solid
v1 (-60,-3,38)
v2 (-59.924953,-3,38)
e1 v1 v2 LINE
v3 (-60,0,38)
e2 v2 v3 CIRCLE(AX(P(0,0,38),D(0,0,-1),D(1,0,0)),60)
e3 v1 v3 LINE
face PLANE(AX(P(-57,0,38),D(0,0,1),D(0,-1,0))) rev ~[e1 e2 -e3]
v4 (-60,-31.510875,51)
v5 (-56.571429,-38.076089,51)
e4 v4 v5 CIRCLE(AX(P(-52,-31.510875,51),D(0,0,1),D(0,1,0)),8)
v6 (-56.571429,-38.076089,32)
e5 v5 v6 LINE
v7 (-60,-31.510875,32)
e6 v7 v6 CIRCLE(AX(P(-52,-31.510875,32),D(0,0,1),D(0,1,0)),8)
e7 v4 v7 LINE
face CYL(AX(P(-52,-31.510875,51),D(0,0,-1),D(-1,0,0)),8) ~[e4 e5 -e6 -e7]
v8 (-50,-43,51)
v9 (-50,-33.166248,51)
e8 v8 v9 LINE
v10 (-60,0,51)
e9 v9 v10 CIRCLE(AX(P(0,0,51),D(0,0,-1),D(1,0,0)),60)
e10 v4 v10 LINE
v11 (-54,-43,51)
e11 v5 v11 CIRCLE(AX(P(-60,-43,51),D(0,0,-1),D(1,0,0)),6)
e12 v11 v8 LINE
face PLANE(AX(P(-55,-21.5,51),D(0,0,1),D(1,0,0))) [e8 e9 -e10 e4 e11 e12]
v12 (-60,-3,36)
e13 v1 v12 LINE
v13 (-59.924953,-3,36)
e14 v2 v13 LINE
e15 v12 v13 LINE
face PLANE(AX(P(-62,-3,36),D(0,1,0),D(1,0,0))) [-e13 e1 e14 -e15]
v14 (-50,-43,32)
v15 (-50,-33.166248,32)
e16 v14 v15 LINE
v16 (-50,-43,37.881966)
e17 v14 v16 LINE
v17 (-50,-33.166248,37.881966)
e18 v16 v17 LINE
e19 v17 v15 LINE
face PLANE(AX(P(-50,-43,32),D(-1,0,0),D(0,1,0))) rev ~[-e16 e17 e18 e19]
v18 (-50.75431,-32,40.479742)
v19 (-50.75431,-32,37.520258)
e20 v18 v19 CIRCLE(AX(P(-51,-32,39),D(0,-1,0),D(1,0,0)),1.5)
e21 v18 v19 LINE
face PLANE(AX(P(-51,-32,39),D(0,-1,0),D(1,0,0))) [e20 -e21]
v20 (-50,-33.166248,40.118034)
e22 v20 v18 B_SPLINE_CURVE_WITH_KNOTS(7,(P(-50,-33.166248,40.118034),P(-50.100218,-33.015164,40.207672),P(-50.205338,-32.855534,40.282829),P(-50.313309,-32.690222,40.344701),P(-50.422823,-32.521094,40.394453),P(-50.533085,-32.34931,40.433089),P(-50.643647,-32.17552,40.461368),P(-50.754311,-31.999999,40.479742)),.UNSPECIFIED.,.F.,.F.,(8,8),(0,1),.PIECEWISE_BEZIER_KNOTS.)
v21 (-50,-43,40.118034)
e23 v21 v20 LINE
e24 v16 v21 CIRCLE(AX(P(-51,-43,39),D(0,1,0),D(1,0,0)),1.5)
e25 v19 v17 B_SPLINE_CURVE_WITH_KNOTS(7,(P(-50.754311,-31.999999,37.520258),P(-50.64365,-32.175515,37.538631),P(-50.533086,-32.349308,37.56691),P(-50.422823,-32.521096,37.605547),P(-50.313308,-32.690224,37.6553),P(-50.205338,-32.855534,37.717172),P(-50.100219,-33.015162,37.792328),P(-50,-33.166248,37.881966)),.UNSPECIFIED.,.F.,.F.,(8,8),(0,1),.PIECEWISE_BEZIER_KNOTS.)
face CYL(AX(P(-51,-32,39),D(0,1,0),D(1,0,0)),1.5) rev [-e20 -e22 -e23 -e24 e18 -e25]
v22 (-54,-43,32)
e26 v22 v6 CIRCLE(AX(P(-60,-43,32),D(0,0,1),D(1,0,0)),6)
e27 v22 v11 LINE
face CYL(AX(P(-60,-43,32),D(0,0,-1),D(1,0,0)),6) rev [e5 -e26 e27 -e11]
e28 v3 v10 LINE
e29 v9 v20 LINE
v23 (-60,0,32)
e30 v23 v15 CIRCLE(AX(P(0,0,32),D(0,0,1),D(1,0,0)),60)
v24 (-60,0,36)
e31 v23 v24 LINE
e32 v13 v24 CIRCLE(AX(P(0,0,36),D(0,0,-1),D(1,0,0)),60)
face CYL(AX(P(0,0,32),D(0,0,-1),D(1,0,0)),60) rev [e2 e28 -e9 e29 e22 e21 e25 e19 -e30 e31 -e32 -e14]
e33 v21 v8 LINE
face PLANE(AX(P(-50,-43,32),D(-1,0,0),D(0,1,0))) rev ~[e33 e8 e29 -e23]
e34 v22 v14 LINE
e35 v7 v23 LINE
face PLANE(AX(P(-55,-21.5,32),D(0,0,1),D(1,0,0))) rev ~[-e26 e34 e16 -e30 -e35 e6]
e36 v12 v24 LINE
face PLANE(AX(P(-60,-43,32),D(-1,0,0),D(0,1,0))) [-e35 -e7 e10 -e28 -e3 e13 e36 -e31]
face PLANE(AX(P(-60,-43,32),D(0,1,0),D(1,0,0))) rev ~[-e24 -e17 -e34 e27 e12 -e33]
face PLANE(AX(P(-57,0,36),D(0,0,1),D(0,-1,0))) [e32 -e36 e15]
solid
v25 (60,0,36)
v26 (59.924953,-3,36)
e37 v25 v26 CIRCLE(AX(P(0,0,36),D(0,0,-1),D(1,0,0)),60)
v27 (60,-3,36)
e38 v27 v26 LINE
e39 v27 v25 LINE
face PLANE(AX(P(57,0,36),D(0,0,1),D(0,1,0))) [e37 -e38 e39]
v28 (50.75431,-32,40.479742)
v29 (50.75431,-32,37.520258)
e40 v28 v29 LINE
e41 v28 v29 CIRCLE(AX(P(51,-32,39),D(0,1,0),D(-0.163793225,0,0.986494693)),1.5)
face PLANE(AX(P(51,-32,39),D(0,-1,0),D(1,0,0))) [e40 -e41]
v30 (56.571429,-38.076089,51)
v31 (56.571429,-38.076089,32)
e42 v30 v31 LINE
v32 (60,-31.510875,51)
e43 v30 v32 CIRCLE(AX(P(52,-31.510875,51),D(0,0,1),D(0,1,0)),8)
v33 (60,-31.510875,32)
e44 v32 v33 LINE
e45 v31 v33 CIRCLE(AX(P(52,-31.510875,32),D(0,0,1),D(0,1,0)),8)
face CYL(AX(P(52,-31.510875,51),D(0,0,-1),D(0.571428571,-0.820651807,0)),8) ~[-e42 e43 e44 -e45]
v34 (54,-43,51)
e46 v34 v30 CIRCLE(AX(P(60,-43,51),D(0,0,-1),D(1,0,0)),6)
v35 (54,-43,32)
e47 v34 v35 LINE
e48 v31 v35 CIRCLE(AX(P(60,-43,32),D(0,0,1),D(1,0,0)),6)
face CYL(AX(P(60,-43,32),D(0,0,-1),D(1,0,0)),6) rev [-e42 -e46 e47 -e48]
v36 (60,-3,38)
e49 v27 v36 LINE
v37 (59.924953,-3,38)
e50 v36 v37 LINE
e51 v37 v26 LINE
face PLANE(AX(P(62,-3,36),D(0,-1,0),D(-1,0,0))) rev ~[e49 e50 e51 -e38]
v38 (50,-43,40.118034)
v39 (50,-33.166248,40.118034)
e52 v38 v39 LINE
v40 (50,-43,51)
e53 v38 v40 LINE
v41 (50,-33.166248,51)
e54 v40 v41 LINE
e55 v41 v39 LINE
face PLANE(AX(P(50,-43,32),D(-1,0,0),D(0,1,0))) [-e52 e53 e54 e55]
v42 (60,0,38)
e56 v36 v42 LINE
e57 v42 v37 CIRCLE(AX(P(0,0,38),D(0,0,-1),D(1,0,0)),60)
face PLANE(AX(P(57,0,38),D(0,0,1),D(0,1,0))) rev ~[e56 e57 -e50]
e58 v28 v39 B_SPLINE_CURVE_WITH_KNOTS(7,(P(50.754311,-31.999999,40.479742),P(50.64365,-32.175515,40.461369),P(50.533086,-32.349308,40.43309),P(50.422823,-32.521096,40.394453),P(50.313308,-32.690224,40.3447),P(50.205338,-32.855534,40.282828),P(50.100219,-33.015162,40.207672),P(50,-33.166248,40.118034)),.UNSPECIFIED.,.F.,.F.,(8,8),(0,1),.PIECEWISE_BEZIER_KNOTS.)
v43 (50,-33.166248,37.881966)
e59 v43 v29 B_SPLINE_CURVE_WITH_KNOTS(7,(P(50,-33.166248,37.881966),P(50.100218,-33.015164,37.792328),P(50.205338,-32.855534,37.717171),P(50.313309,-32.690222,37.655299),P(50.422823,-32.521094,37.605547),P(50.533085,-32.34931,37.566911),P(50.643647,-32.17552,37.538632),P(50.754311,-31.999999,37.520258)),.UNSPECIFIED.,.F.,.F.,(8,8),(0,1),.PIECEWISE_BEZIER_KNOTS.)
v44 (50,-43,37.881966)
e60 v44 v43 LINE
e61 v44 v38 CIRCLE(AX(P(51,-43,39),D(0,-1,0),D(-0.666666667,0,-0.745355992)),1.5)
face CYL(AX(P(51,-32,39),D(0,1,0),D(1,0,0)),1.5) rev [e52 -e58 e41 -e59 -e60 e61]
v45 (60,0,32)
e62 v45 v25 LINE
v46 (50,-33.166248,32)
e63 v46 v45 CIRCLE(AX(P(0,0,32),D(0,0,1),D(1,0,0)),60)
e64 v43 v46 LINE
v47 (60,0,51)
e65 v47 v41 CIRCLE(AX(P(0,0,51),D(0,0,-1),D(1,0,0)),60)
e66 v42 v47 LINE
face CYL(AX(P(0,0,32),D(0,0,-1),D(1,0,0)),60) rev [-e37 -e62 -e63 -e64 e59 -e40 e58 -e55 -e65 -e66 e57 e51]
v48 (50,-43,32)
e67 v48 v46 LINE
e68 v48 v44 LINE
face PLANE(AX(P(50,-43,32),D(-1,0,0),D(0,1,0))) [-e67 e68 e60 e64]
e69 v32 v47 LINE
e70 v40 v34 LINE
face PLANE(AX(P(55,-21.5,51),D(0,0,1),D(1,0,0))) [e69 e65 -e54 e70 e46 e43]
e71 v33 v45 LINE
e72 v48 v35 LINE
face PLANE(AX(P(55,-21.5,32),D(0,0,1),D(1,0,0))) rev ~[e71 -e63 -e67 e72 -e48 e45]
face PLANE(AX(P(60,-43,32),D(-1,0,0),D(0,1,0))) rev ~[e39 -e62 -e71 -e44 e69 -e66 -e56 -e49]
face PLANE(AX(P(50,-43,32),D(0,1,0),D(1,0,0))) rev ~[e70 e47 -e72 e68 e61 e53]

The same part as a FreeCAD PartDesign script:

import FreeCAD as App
import Part
import Sketcher
Q = App.Units.Quantity


def edges_at(feature, points):
    """Names of the edges that pass closest to the given points."""
    edges = feature.Shape.Edges
    near = lambda p: min(range(len(edges)), key=lambda i: edges[i].distToShape(Part.Vertex(*p))[0])
    return sorted({f"Edge{near(p) + 1}" for p in points})


def add_polygon(sketch, points):
    """Adds a closed chain of lines whose ends are joined by coincident constraints."""
    first, n = sketch.GeometryCount, len(points)
    for a, b in zip(points, points[1:] + points[:1]):
        sketch.addGeometry(Part.LineSegment(App.Vector(*a, 0), App.Vector(*b, 0)), False)
    for i in range(n):
        sketch.addConstraint(Sketcher.Constraint("Coincident", first + i, 2, first + (i + 1) % n, 1))

doc = App.newDocument("Part")
body = doc.addObject("PartDesign::Body", "Body")

# Sketch on XZ plane
sketch1 = doc.addObject("Sketcher::SketchObject", "Sketch")
body.addObject(sketch1)
sketch1.AttachmentSupport = (doc.XZ_Plane, [""])
sketch1.MapMode = "FlatFace"
sketch1.AttachmentOffset = App.Placement(App.Vector(0, 0, 40), App.Rotation())
sketch1.addGeometry(Part.Circle(App.Vector(51, 25, 0), App.Vector(0, 0, 1), 1.5), False)
sketch1.addConstraint([
    Sketcher.Constraint("Diameter", 0, Q("3 mm")),
    Sketcher.Constraint("DistanceX", -1, 1, 0, 3, Q("51 mm")),
    Sketcher.Constraint("DistanceY", -1, 1, 0, 3, Q("25 mm")),
])
pad1 = doc.addObject("PartDesign::Pad", "Pad")
body.addObject(pad1)
pad1.Profile = sketch1
pad1.Length = 40
body2 = doc.addObject("PartDesign::Body", "Body001")
body2.AllowCompound = True

# Sketch on XZ plane
sketch2 = doc.addObject("Sketcher::SketchObject", "Sketch001")
body2.addObject(sketch2)
sketch2.AttachmentSupport = (doc.getObject("XZ_Plane001"), [""])
sketch2.MapMode = "FlatFace"
sketch2.AttachmentOffset = App.Placement(App.Vector(0, 0, 40), App.Rotation())
sketch2.addGeometry(Part.Circle(App.Vector(-51, 25, 0), App.Vector(0, 0, 1), 1.5), False)
sketch2.addConstraint([
    Sketcher.Constraint("Diameter", 0, Q("3 mm")),
    Sketcher.Constraint("DistanceX", 0, 3, -1, 1, Q("51 mm")),
    Sketcher.Constraint("DistanceY", -1, 1, 0, 3, Q("25 mm")),
])
pad2 = doc.addObject("PartDesign::Pad", "Pad001")
body2.addObject(pad2)
pad2.Profile = sketch2
pad2.Length = 40
doc.recompute()

boolean = doc.addObject("PartDesign::Boolean", "Boolean")
body2.addObject(boolean)
boolean.Type = "Fuse"
boolean.addObjects([body])
body3 = doc.addObject("PartDesign::Body", "Body002")
body3.AllowCompound = True
doc.recompute()

body2.Placement = App.Placement(App.Vector(0, 8, 2), App.Rotation(App.Vector(0, 0, 1), 0))
boolean2 = doc.addObject("PartDesign::Boolean", "Boolean001")
body3.addObject(boolean2)
boolean2.Type = "Fuse"
boolean2.addObjects([body2])
body4 = doc.addObject("PartDesign::Body", "Body003")

# Sketch on XY plane
sketch3 = doc.addObject("Sketcher::SketchObject", "Sketch002")
body4.addObject(sketch3)
sketch3.AttachmentSupport = (doc.getObject("XY_Plane003"), [""])
sketch3.MapMode = "FlatFace"
add_polygon(sketch3, [(0, 10), (0, 0), (6, 0), (6, 10)])  # lines 0-3
sketch3.addConstraint([
    Sketcher.Constraint("Vertical", 0),
    Sketcher.Constraint("Horizontal", 1),
    Sketcher.Constraint("Vertical", 2),
    Sketcher.Constraint("Horizontal", 3),
    Sketcher.Constraint("Coincident", 0, 2, -1, 1),
    Sketcher.Constraint("DistanceX", 1, 1, 1, 2, Q("6 mm")),
    Sketcher.Constraint("DistanceY", 0, 2, 0, 1, Q("10 mm")),
])
pad3 = doc.addObject("PartDesign::Pad", "Pad002")
body4.addObject(pad3)
pad3.Profile = sketch3
pad3.Length = 2
body5 = doc.addObject("PartDesign::Body", "Body004")
doc.recompute()

body4.Placement = App.Placement(App.Vector(-41.7193, 45.961941, 23), App.Rotation(App.Vector(0, 0, 1), 225))
boolean3 = doc.addObject("PartDesign::Boolean", "Boolean002")
body5.addObject(boolean3)
boolean3.Type = "Fuse"
boolean3.addObjects([body4])
body6 = doc.addObject("PartDesign::Body", "Body005")

# Sketch on XY plane
sketch4 = doc.addObject("Sketcher::SketchObject", "Sketch003")
body6.addObject(sketch4)
sketch4.AttachmentSupport = (doc.getObject("XY_Plane005"), [""])
sketch4.MapMode = "FlatFace"
sketch4.AttachmentOffset = App.Placement(App.Vector(0, 0, 23), App.Rotation())
add_polygon(sketch4, [(-52, 3), (-62, 3), (-62, -3), (-52, -3)])  # lines 0-3
sketch4.addConstraint([
    Sketcher.Constraint("Horizontal", 0),
    Sketcher.Constraint("Vertical", 1),
    Sketcher.Constraint("Horizontal", 2),
    Sketcher.Constraint("Vertical", 3),
    Sketcher.Constraint("DistanceX", 0, 2, 0, 1, Q("10 mm")),
    Sketcher.Constraint("DistanceY", 1, 2, 1, 1, Q("6 mm")),
    Sketcher.Constraint("DistanceX", 0, 2, -1, 1, Q("62 mm")),
    Sketcher.Constraint("DistanceY", -1, 1, 0, 2, Q("3 mm")),
])
pad4 = doc.addObject("PartDesign::Pad", "Pad003")
body6.addObject(pad4)
pad4.Profile = sketch4
pad4.Length = 2
body7 = doc.addObject("PartDesign::Body", "Body006")

# Sketch on XY plane
sketch5 = doc.addObject("Sketcher::SketchObject", "Sketch004")
body7.addObject(sketch5)
sketch5.AttachmentSupport = (doc.getObject("XY_Plane006"), [""])
sketch5.MapMode = "FlatFace"
add_polygon(sketch5, [(0, 10), (0, 0), (6, 0), (6, 10)])  # lines 0-3
sketch5.addConstraint([
    Sketcher.Constraint("Vertical", 0),
    Sketcher.Constraint("Horizontal", 1),
    Sketcher.Constraint("Vertical", 2),
    Sketcher.Constraint("Horizontal", 3),
    Sketcher.Constraint("Coincident", 0, 2, -1, 1),
    Sketcher.Constraint("DistanceX", 1, 1, 1, 2, Q("6 mm")),
    Sketcher.Constraint("DistanceY", 0, 2, 0, 1, Q("10 mm")),
])
pad5 = doc.addObject("PartDesign::Pad", "Pad004")
body7.addObject(pad5)
pad5.Profile = sketch5
pad5.Length = 2
body8 = doc.addObject("PartDesign::Body", "Body007")
doc.recompute()

body7.Placement = App.Placement(App.Vector(-45.961941, -41.7193, 23), App.Rotation(App.Vector(0, 0, -1), 45))
boolean4 = doc.addObject("PartDesign::Boolean", "Boolean003")
body8.addObject(boolean4)
boolean4.Type = "Fuse"
boolean4.addObjects([body7])
body9 = doc.addObject("PartDesign::Body", "Body008")

# Sketch on XY plane
sketch6 = doc.addObject("Sketcher::SketchObject", "Sketch005")
body9.addObject(sketch6)
sketch6.AttachmentSupport = (doc.getObject("XY_Plane008"), [""])
sketch6.MapMode = "FlatFace"
sketch6.AttachmentOffset = App.Placement(App.Vector(0, 0, 23), App.Rotation())
add_polygon(sketch6, [(-3, -52), (-3, -62), (3, -62), (3, -52)])  # lines 0-3
sketch6.addConstraint([
    Sketcher.Constraint("Vertical", 0),
    Sketcher.Constraint("Horizontal", 1),
    Sketcher.Constraint("Vertical", 2),
    Sketcher.Constraint("Horizontal", 3),
    Sketcher.Constraint("DistanceX", 1, 1, 1, 2, Q("6 mm")),
    Sketcher.Constraint("DistanceY", 0, 2, 0, 1, Q("10 mm")),
    Sketcher.Constraint("DistanceX", 0, 2, -1, 1, Q("3 mm")),
    Sketcher.Constraint("DistanceY", 0, 2, -1, 1, Q("62 mm")),
])
pad6 = doc.addObject("PartDesign::Pad", "Pad005")
body9.addObject(pad6)
pad6.Profile = sketch6
pad6.Length = 2
body10 = doc.addObject("PartDesign::Body", "Body009")

# Sketch on XY plane
sketch7 = doc.addObject("Sketcher::SketchObject", "Sketch006")
body10.addObject(sketch7)
sketch7.AttachmentSupport = (doc.getObject("XY_Plane009"), [""])
sketch7.MapMode = "FlatFace"
add_polygon(sketch7, [(0, 10), (0, 0), (6, 0), (6, 10)])  # lines 0-3
sketch7.addConstraint([
    Sketcher.Constraint("Vertical", 0),
    Sketcher.Constraint("Horizontal", 1),
    Sketcher.Constraint("Vertical", 2),
    Sketcher.Constraint("Horizontal", 3),
    Sketcher.Constraint("Coincident", 0, 2, -1, 1),
    Sketcher.Constraint("DistanceX", 1, 1, 1, 2, Q("6 mm")),
    Sketcher.Constraint("DistanceY", 0, 2, 0, 1, Q("10 mm")),
])
pad7 = doc.addObject("PartDesign::Pad", "Pad006")
body10.addObject(pad7)
pad7.Profile = sketch7
pad7.Length = 2
body11 = doc.addObject("PartDesign::Body", "Body010")
doc.recompute()

body10.Placement = App.Placement(App.Vector(41.7193, -45.961941, 23), App.Rotation(App.Vector(0, 0, 1), 45))
boolean5 = doc.addObject("PartDesign::Boolean", "Boolean004")
body11.addObject(boolean5)
boolean5.Type = "Fuse"
boolean5.addObjects([body10])
body12 = doc.addObject("PartDesign::Body", "Body011")

# Sketch on XY plane
sketch8 = doc.addObject("Sketcher::SketchObject", "Sketch007")
body12.addObject(sketch8)
sketch8.AttachmentSupport = (doc.getObject("XY_Plane011"), [""])
sketch8.MapMode = "FlatFace"
sketch8.AttachmentOffset = App.Placement(App.Vector(0, 0, 23), App.Rotation())
add_polygon(sketch8, [(52, -3), (62, -3), (62, 3), (52, 3)])  # lines 0-3
sketch8.addConstraint([
    Sketcher.Constraint("Horizontal", 0),
    Sketcher.Constraint("Vertical", 1),
    Sketcher.Constraint("Horizontal", 2),
    Sketcher.Constraint("Vertical", 3),
    Sketcher.Constraint("DistanceX", 0, 1, 0, 2, Q("10 mm")),
    Sketcher.Constraint("DistanceY", 1, 1, 1, 2, Q("6 mm")),
    Sketcher.Constraint("DistanceX", -1, 1, 0, 2, Q("62 mm")),
    Sketcher.Constraint("DistanceY", 0, 2, -1, 1, Q("3 mm")),
])
pad8 = doc.addObject("PartDesign::Pad", "Pad007")
body12.addObject(pad8)
pad8.Profile = sketch8
pad8.Length = 2
body13 = doc.addObject("PartDesign::Body", "Body012")

# Sketch on XY plane
sketch9 = doc.addObject("Sketcher::SketchObject", "Sketch008")
body13.addObject(sketch9)
sketch9.AttachmentSupport = (doc.getObject("XY_Plane012"), [""])
sketch9.MapMode = "FlatFace"
add_polygon(sketch9, [(0, 10), (0, 0), (6, 0), (6, 10)])  # lines 0-3
sketch9.addConstraint([
    Sketcher.Constraint("Vertical", 0),
    Sketcher.Constraint("Horizontal", 1),
    Sketcher.Constraint("Vertical", 2),
    Sketcher.Constraint("Horizontal", 3),
    Sketcher.Constraint("Coincident", 0, 2, -1, 1),
    Sketcher.Constraint("DistanceX", 1, 1, 1, 2, Q("6 mm")),
    Sketcher.Constraint("DistanceY", 0, 2, 0, 1, Q("10 mm")),
])
pad9 = doc.addObject("PartDesign::Pad", "Pad008")
body13.addObject(pad9)
pad9.Profile = sketch9
pad9.Length = 2
body14 = doc.addObject("PartDesign::Body", "Body013")
doc.recompute()

body13.Placement = App.Placement(App.Vector(45.961941, 41.7193, 23), App.Rotation(App.Vector(0, 0, 1), 135))
boolean6 = doc.addObject("PartDesign::Boolean", "Boolean005")
body14.addObject(boolean6)
boolean6.Type = "Fuse"
boolean6.addObjects([body13])
body15 = doc.addObject("PartDesign::Body", "Body014")
body15.AllowCompound = True

# Sketch on XY plane
sketch10 = doc.addObject("Sketcher::SketchObject", "Sketch009")
body15.addObject(sketch10)
sketch10.AttachmentSupport = (doc.getObject("XY_Plane014"), [""])
sketch10.MapMode = "FlatFace"
sketch10.AttachmentOffset = App.Placement(App.Vector(0, 0, 23), App.Rotation())
add_polygon(sketch10, [(3, 52), (3, 62), (-3, 62), (-3, 52)])  # lines 0-3
sketch10.addConstraint([
    Sketcher.Constraint("Vertical", 0),
    Sketcher.Constraint("Horizontal", 1),
    Sketcher.Constraint("Vertical", 2),
    Sketcher.Constraint("Horizontal", 3),
    Sketcher.Constraint("DistanceX", 1, 2, 1, 1, Q("6 mm")),
    Sketcher.Constraint("DistanceY", 0, 1, 0, 2, Q("10 mm")),
    Sketcher.Constraint("DistanceX", -1, 1, 0, 2, Q("3 mm")),
    Sketcher.Constraint("DistanceY", -1, 1, 0, 2, Q("62 mm")),
])
pad10 = doc.addObject("PartDesign::Pad", "Pad009")
body15.addObject(pad10)
pad10.Profile = sketch10
pad10.Length = 2
doc.recompute()

boolean7 = doc.addObject("PartDesign::Boolean", "Boolean006")
body15.addObject(boolean7)
boolean7.Type = "Fuse"
boolean7.addObjects([body5])
doc.recompute()

boolean8 = doc.addObject("PartDesign::Boolean", "Boolean007")
body15.addObject(boolean8)
boolean8.Type = "Fuse"
boolean8.addObjects([body6])
doc.recompute()

boolean9 = doc.addObject("PartDesign::Boolean", "Boolean008")
body15.addObject(boolean9)
boolean9.Type = "Fuse"
boolean9.addObjects([body8])
doc.recompute()

boolean10 = doc.addObject("PartDesign::Boolean", "Boolean009")
body15.addObject(boolean10)
boolean10.Type = "Fuse"
boolean10.addObjects([body9])
doc.recompute()

boolean11 = doc.addObject("PartDesign::Boolean", "Boolean010")
body15.addObject(boolean11)
boolean11.Type = "Fuse"
boolean11.addObjects([body11])
doc.recompute()

boolean12 = doc.addObject("PartDesign::Boolean", "Boolean011")
body15.addObject(boolean12)
boolean12.Type = "Fuse"
boolean12.addObjects([body12])
doc.recompute()

boolean13 = doc.addObject("PartDesign::Boolean", "Boolean012")
body15.addObject(boolean13)
boolean13.Type = "Fuse"
boolean13.addObjects([body14])
body16 = doc.addObject("PartDesign::Body", "Body015")
body16.AllowCompound = True
doc.recompute()

body15.Placement = App.Placement(App.Vector(0, 0, 1), App.Rotation(App.Vector(0, 0, 1), 0))
boolean14 = doc.addObject("PartDesign::Boolean", "Boolean013")
body16.addObject(boolean14)
boolean14.Type = "Fuse"
boolean14.addObjects([body15])
body17 = doc.addObject("PartDesign::Body", "Body016")

# Sketch on XY plane
sketch11 = doc.addObject("Sketcher::SketchObject", "Sketch010")
body17.addObject(sketch11)
sketch11.AttachmentSupport = (doc.getObject("XY_Plane016"), [""])
sketch11.MapMode = "FlatFace"
sketch11.AttachmentOffset = App.Placement(App.Vector(0, 0, 20), App.Rotation())
sketch11.addGeometry(Part.Circle(App.Vector(0, 0, 0), App.Vector(0, 0, 1), 60), False)
sketch11.addConstraint([
    Sketcher.Constraint("Coincident", 0, 3, -1, 1),
    Sketcher.Constraint("Diameter", 0, Q("120 mm")),
])
pad11 = doc.addObject("PartDesign::Pad", "Pad010")
body17.addObject(pad11)
pad11.Profile = sketch11
pad11.Length = 33
body18 = doc.addObject("PartDesign::Body", "Body017")

# Sketch on XY plane
sketch12 = doc.addObject("Sketcher::SketchObject", "Sketch011")
body18.addObject(sketch12)
sketch12.AttachmentSupport = (doc.getObject("XY_Plane017"), [""])
sketch12.MapMode = "FlatFace"
sketch12.AttachmentOffset = App.Placement(App.Vector(0, 0, 10), App.Rotation())
sketch12.addGeometry(Part.Circle(App.Vector(-60, -43, 0), App.Vector(0, 0, 1), 6), False)
sketch12.addConstraint([
    Sketcher.Constraint("Diameter", 0, Q("12 mm")),
    Sketcher.Constraint("DistanceX", 0, 3, -1, 1, Q("60 mm")),
    Sketcher.Constraint("DistanceY", 0, 3, -1, 1, Q("43 mm")),
])
pad12 = doc.addObject("PartDesign::Pad", "Pad011")
body18.addObject(pad12)
pad12.Profile = sketch12
pad12.Length = 33
body19 = doc.addObject("PartDesign::Body", "Body018")
body19.AllowCompound = True

# Sketch on XY plane
sketch13 = doc.addObject("Sketcher::SketchObject", "Sketch012")
body19.addObject(sketch13)
sketch13.AttachmentSupport = (doc.getObject("XY_Plane018"), [""])
sketch13.MapMode = "FlatFace"
sketch13.AttachmentOffset = App.Placement(App.Vector(0, 0, 10), App.Rotation())
sketch13.addGeometry(Part.Circle(App.Vector(60, -43, 0), App.Vector(0, 0, 1), 6), False)
sketch13.addConstraint([
    Sketcher.Constraint("Diameter", 0, Q("12 mm")),
    Sketcher.Constraint("DistanceX", -1, 1, 0, 3, Q("60 mm")),
    Sketcher.Constraint("DistanceY", 0, 3, -1, 1, Q("43 mm")),
])
pad13 = doc.addObject("PartDesign::Pad", "Pad012")
body19.addObject(pad13)
pad13.Profile = sketch13
pad13.Length = 33
doc.recompute()

boolean15 = doc.addObject("PartDesign::Boolean", "Boolean014")
body19.addObject(boolean15)
boolean15.Type = "Fuse"
boolean15.addObjects([body18])
body20 = doc.addObject("PartDesign::Body", "Body019")

# Sketch on XY plane
sketch14 = doc.addObject("Sketcher::SketchObject", "Sketch013")
body20.addObject(sketch14)
sketch14.AttachmentSupport = (doc.getObject("XY_Plane019"), [""])
sketch14.MapMode = "FlatFace"
sketch14.addGeometry(Part.Circle(App.Vector(0, 0, 0), App.Vector(0, 0, 1), 1.5), False)
sketch14.addConstraint([
    Sketcher.Constraint("Coincident", 0, 3, -1, 1),
    Sketcher.Constraint("Diameter", 0, Q("3 mm")),
])
pad14 = doc.addObject("PartDesign::Pad", "Pad013")
body20.addObject(pad14)
pad14.Profile = sketch14
pad14.Length = 50
body21 = doc.addObject("PartDesign::Body", "Body020")
doc.recompute()

body20.Placement = App.Placement(App.Vector(39.59798, -39.59798, 2), App.Rotation(App.Vector(0, 0, 1), 45))
boolean16 = doc.addObject("PartDesign::Boolean", "Boolean015")
body21.addObject(boolean16)
boolean16.Type = "Fuse"
boolean16.addObjects([body20])
body22 = doc.addObject("PartDesign::Body", "Body021")

# Sketch on XY plane
sketch15 = doc.addObject("Sketcher::SketchObject", "Sketch014")
body22.addObject(sketch15)
sketch15.AttachmentSupport = (doc.getObject("XY_Plane021"), [""])
sketch15.MapMode = "FlatFace"
sketch15.AttachmentOffset = App.Placement(App.Vector(0, 0, 2), App.Rotation())
sketch15.addGeometry(Part.Circle(App.Vector(56, 0, 0), App.Vector(0, 0, 1), 1.5), False)
sketch15.addConstraint([
    Sketcher.Constraint("PointOnObject", 0, 3, -1),
    Sketcher.Constraint("Diameter", 0, Q("3 mm")),
    Sketcher.Constraint("DistanceX", -1, 1, 0, 3, Q("56 mm")),
])
pad15 = doc.addObject("PartDesign::Pad", "Pad014")
body22.addObject(pad15)
pad15.Profile = sketch15
pad15.Length = 50
body23 = doc.addObject("PartDesign::Body", "Body022")

# Sketch on XY plane
sketch16 = doc.addObject("Sketcher::SketchObject", "Sketch015")
body23.addObject(sketch16)
sketch16.AttachmentSupport = (doc.getObject("XY_Plane022"), [""])
sketch16.MapMode = "FlatFace"
sketch16.addGeometry(Part.Circle(App.Vector(0, 0, 0), App.Vector(0, 0, 1), 1.5), False)
sketch16.addConstraint([
    Sketcher.Constraint("Coincident", 0, 3, -1, 1),
    Sketcher.Constraint("Diameter", 0, Q("3 mm")),
])
pad16 = doc.addObject("PartDesign::Pad", "Pad015")
body23.addObject(pad16)
pad16.Profile = sketch16
pad16.Length = 50
body24 = doc.addObject("PartDesign::Body", "Body023")
doc.recompute()

body23.Placement = App.Placement(App.Vector(39.59798, 39.59798, 2), App.Rotation(App.Vector(0, 0, 1), 135))
boolean17 = doc.addObject("PartDesign::Boolean", "Boolean016")
body24.addObject(boolean17)
boolean17.Type = "Fuse"
boolean17.addObjects([body23])
body25 = doc.addObject("PartDesign::Body", "Body024")

# Sketch on XY plane
sketch17 = doc.addObject("Sketcher::SketchObject", "Sketch016")
body25.addObject(sketch17)
sketch17.AttachmentSupport = (doc.getObject("XY_Plane024"), [""])
sketch17.MapMode = "FlatFace"
sketch17.AttachmentOffset = App.Placement(App.Vector(0, 0, 2), App.Rotation())
sketch17.addGeometry(Part.Circle(App.Vector(0, 56, 0), App.Vector(0, 0, 1), 1.5), False)
sketch17.addConstraint([
    Sketcher.Constraint("PointOnObject", 0, 3, -2),
    Sketcher.Constraint("Diameter", 0, Q("3 mm")),
    Sketcher.Constraint("DistanceY", -1, 1, 0, 3, Q("56 mm")),
])
pad17 = doc.addObject("PartDesign::Pad", "Pad016")
body25.addObject(pad17)
pad17.Profile = sketch17
pad17.Length = 50
body26 = doc.addObject("PartDesign::Body", "Body025")

# Sketch on XY plane
sketch18 = doc.addObject("Sketcher::SketchObject", "Sketch017")
body26.addObject(sketch18)
sketch18.AttachmentSupport = (doc.getObject("XY_Plane025"), [""])
sketch18.MapMode = "FlatFace"
sketch18.addGeometry(Part.Circle(App.Vector(0, 0, 0), App.Vector(0, 0, 1), 1.5), False)
sketch18.addConstraint([
    Sketcher.Constraint("Coincident", 0, 3, -1, 1),
    Sketcher.Constraint("Diameter", 0, Q("3 mm")),
])
pad18 = doc.addObject("PartDesign::Pad", "Pad017")
body26.addObject(pad18)
pad18.Profile = sketch18
pad18.Length = 50
body27 = doc.addObject("PartDesign::Body", "Body026")
doc.recompute()

body26.Placement = App.Placement(App.Vector(-39.59798, 39.59798, 2), App.Rotation(App.Vector(0, 0, 1), 225))
boolean18 = doc.addObject("PartDesign::Boolean", "Boolean017")
body27.addObject(boolean18)
boolean18.Type = "Fuse"
boolean18.addObjects([body26])
body28 = doc.addObject("PartDesign::Body", "Body027")

# Sketch on XY plane
sketch19 = doc.addObject("Sketcher::SketchObject", "Sketch018")
body28.addObject(sketch19)
sketch19.AttachmentSupport = (doc.getObject("XY_Plane027"), [""])
sketch19.MapMode = "FlatFace"
sketch19.AttachmentOffset = App.Placement(App.Vector(0, 0, 2), App.Rotation())
sketch19.addGeometry(Part.Circle(App.Vector(-56, 0, 0), App.Vector(0, 0, 1), 1.5), False)
sketch19.addConstraint([
    Sketcher.Constraint("PointOnObject", 0, 3, -1),
    Sketcher.Constraint("Diameter", 0, Q("3 mm")),
    Sketcher.Constraint("DistanceX", 0, 3, -1, 1, Q("56 mm")),
])
pad19 = doc.addObject("PartDesign::Pad", "Pad018")
body28.addObject(pad19)
pad19.Profile = sketch19
pad19.Length = 50
body29 = doc.addObject("PartDesign::Body", "Body028")

# Sketch on XY plane
sketch20 = doc.addObject("Sketcher::SketchObject", "Sketch019")
body29.addObject(sketch20)
sketch20.AttachmentSupport = (doc.getObject("XY_Plane028"), [""])
sketch20.MapMode = "FlatFace"
sketch20.addGeometry(Part.Circle(App.Vector(0, 0, 0), App.Vector(0, 0, 1), 1.5), False)
sketch20.addConstraint([
    Sketcher.Constraint("Coincident", 0, 3, -1, 1),
    Sketcher.Constraint("Diameter", 0, Q("3 mm")),
])
pad20 = doc.addObject("PartDesign::Pad", "Pad019")
body29.addObject(pad20)
pad20.Profile = sketch20
pad20.Length = 50
body30 = doc.addObject("PartDesign::Body", "Body029")
doc.recompute()

body29.Placement = App.Placement(App.Vector(-39.59798, -39.59798, 2), App.Rotation(App.Vector(0, 0, -1), 45))
boolean19 = doc.addObject("PartDesign::Boolean", "Boolean018")
body30.addObject(boolean19)
boolean19.Type = "Fuse"
boolean19.addObjects([body29])
body31 = doc.addObject("PartDesign::Body", "Body030")
body31.AllowCompound = True

# Sketch on XY plane
sketch21 = doc.addObject("Sketcher::SketchObject", "Sketch020")
body31.addObject(sketch21)
sketch21.AttachmentSupport = (doc.getObject("XY_Plane030"), [""])
sketch21.MapMode = "FlatFace"
sketch21.AttachmentOffset = App.Placement(App.Vector(0, 0, 2), App.Rotation())
sketch21.addGeometry(Part.Circle(App.Vector(0, -56, 0), App.Vector(0, 0, 1), 1.5), False)
sketch21.addConstraint([
    Sketcher.Constraint("PointOnObject", 0, 3, -2),
    Sketcher.Constraint("Diameter", 0, Q("3 mm")),
    Sketcher.Constraint("DistanceY", 0, 3, -1, 1, Q("56 mm")),
])
pad21 = doc.addObject("PartDesign::Pad", "Pad020")
body31.addObject(pad21)
pad21.Profile = sketch21
pad21.Length = 50
doc.recompute()

boolean20 = doc.addObject("PartDesign::Boolean", "Boolean019")
body31.addObject(boolean20)
boolean20.Type = "Fuse"
boolean20.addObjects([body21])
doc.recompute()

boolean21 = doc.addObject("PartDesign::Boolean", "Boolean020")
body31.addObject(boolean21)
boolean21.Type = "Fuse"
boolean21.addObjects([body22])
doc.recompute()

boolean22 = doc.addObject("PartDesign::Boolean", "Boolean021")
body31.addObject(boolean22)
boolean22.Type = "Fuse"
boolean22.addObjects([body24])
doc.recompute()

boolean23 = doc.addObject("PartDesign::Boolean", "Boolean022")
body31.addObject(boolean23)
boolean23.Type = "Fuse"
boolean23.addObjects([body25])
doc.recompute()

boolean24 = doc.addObject("PartDesign::Boolean", "Boolean023")
body31.addObject(boolean24)
boolean24.Type = "Fuse"
boolean24.addObjects([body27])
doc.recompute()

boolean25 = doc.addObject("PartDesign::Boolean", "Boolean024")
body31.addObject(boolean25)
boolean25.Type = "Fuse"
boolean25.addObjects([body28])
doc.recompute()

boolean26 = doc.addObject("PartDesign::Boolean", "Boolean025")
body31.addObject(boolean26)
boolean26.Type = "Fuse"
boolean26.addObjects([body30])
body32 = doc.addObject("PartDesign::Body", "Body031")

# Sketch on XY plane
sketch22 = doc.addObject("Sketcher::SketchObject", "Sketch021")
body32.addObject(sketch22)
sketch22.AttachmentSupport = (doc.getObject("XY_Plane031"), [""])
sketch22.MapMode = "FlatFace"
sketch22.AttachmentOffset = App.Placement(App.Vector(0, 0, 10), App.Rotation())
add_polygon(sketch22, [(50, 0), (50, -43), (60, -43), (60, 0)])  # lines 0-3
sketch22.addConstraint([
    Sketcher.Constraint("Vertical", 0),
    Sketcher.Constraint("Horizontal", 1),
    Sketcher.Constraint("Vertical", 2),
    Sketcher.Constraint("Horizontal", 3),
    Sketcher.Constraint("PointOnObject", 2, 2, -1),
    Sketcher.Constraint("DistanceX", 1, 1, 1, 2, Q("10 mm")),
    Sketcher.Constraint("DistanceY", 0, 2, 0, 1, Q("43 mm")),
    Sketcher.Constraint("DistanceX", -1, 1, 0, 2, Q("50 mm")),
])
pad22 = doc.addObject("PartDesign::Pad", "Pad021")
body32.addObject(pad22)
pad22.Profile = sketch22
pad22.Length = 19
body33 = doc.addObject("PartDesign::Body", "Body032")
body33.AllowCompound = True

# Sketch on XY plane
sketch23 = doc.addObject("Sketcher::SketchObject", "Sketch022")
body33.addObject(sketch23)
sketch23.AttachmentSupport = (doc.getObject("XY_Plane032"), [""])
sketch23.MapMode = "FlatFace"
sketch23.AttachmentOffset = App.Placement(App.Vector(0, 0, 10), App.Rotation())
add_polygon(sketch23, [(-60, 0), (-60, -43), (-50, -43), (-50, 0)])  # lines 0-3
sketch23.addConstraint([
    Sketcher.Constraint("Vertical", 0),
    Sketcher.Constraint("Horizontal", 1),
    Sketcher.Constraint("Vertical", 2),
    Sketcher.Constraint("Horizontal", 3),
    Sketcher.Constraint("PointOnObject", 2, 2, -1),
    Sketcher.Constraint("DistanceX", 1, 1, 1, 2, Q("10 mm")),
    Sketcher.Constraint("DistanceY", 0, 2, 0, 1, Q("43 mm")),
    Sketcher.Constraint("DistanceX", 0, 2, -1, 1, Q("60 mm")),
])
pad23 = doc.addObject("PartDesign::Pad", "Pad022")
body33.addObject(pad23)
pad23.Profile = sketch23
pad23.Length = 19
doc.recompute()

boolean27 = doc.addObject("PartDesign::Boolean", "Boolean026")
body33.addObject(boolean27)
boolean27.Type = "Fuse"
boolean27.addObjects([body32])
doc.recompute()

boolean28 = doc.addObject("PartDesign::Boolean", "Boolean027")
body33.addObject(boolean28)
boolean28.Type = "Cut"
boolean28.addObjects([body31])
doc.recompute()

boolean29 = doc.addObject("PartDesign::Boolean", "Boolean028")
body33.addObject(boolean29)
boolean29.Type = "Cut"
boolean29.addObjects([body19])
body34 = doc.addObject("PartDesign::Body", "Body033")
body34.AllowCompound = True
doc.recompute()

body33.Placement = App.Placement(App.Vector(0, 0, 10), App.Rotation(App.Vector(0, 0, 1), 0))
boolean30 = doc.addObject("PartDesign::Boolean", "Boolean029")
body34.addObject(boolean30)
boolean30.Type = "Fuse"
boolean30.addObjects([body33])
doc.recompute()

boolean31 = doc.addObject("PartDesign::Boolean", "Boolean030")
body34.addObject(boolean31)
boolean31.Type = "Cut"
boolean31.addObjects([body17])
doc.recompute()

boolean32 = doc.addObject("PartDesign::Boolean", "Boolean031")
body34.addObject(boolean32)
boolean32.Type = "Cut"
boolean32.addObjects([body16])
doc.recompute()

boolean33 = doc.addObject("PartDesign::Boolean", "Boolean032")
body34.addObject(boolean33)
boolean33.Type = "Cut"
boolean33.addObjects([body3])
body35 = doc.addObject("PartDesign::Body", "Body034")
body35.AllowCompound = True
doc.recompute()

body34.Placement = App.Placement(App.Vector(0, 0, 12), App.Rotation(App.Vector(0, 0, 1), 0))
boolean34 = doc.addObject("PartDesign::Boolean", "Boolean033")
body35.addObject(boolean34)
boolean34.Type = "Fuse"
boolean34.addObjects([body34])
doc.recompute()

fillet = doc.addObject("PartDesign::Fillet", "Fillet")
body35.addObject(fillet)
fillet.Base = (boolean34, edges_at(boolean34, [(-60, -37, 41.5), (60, -37, 41.5)]))
fillet.Radius = 8

doc.recompute()
